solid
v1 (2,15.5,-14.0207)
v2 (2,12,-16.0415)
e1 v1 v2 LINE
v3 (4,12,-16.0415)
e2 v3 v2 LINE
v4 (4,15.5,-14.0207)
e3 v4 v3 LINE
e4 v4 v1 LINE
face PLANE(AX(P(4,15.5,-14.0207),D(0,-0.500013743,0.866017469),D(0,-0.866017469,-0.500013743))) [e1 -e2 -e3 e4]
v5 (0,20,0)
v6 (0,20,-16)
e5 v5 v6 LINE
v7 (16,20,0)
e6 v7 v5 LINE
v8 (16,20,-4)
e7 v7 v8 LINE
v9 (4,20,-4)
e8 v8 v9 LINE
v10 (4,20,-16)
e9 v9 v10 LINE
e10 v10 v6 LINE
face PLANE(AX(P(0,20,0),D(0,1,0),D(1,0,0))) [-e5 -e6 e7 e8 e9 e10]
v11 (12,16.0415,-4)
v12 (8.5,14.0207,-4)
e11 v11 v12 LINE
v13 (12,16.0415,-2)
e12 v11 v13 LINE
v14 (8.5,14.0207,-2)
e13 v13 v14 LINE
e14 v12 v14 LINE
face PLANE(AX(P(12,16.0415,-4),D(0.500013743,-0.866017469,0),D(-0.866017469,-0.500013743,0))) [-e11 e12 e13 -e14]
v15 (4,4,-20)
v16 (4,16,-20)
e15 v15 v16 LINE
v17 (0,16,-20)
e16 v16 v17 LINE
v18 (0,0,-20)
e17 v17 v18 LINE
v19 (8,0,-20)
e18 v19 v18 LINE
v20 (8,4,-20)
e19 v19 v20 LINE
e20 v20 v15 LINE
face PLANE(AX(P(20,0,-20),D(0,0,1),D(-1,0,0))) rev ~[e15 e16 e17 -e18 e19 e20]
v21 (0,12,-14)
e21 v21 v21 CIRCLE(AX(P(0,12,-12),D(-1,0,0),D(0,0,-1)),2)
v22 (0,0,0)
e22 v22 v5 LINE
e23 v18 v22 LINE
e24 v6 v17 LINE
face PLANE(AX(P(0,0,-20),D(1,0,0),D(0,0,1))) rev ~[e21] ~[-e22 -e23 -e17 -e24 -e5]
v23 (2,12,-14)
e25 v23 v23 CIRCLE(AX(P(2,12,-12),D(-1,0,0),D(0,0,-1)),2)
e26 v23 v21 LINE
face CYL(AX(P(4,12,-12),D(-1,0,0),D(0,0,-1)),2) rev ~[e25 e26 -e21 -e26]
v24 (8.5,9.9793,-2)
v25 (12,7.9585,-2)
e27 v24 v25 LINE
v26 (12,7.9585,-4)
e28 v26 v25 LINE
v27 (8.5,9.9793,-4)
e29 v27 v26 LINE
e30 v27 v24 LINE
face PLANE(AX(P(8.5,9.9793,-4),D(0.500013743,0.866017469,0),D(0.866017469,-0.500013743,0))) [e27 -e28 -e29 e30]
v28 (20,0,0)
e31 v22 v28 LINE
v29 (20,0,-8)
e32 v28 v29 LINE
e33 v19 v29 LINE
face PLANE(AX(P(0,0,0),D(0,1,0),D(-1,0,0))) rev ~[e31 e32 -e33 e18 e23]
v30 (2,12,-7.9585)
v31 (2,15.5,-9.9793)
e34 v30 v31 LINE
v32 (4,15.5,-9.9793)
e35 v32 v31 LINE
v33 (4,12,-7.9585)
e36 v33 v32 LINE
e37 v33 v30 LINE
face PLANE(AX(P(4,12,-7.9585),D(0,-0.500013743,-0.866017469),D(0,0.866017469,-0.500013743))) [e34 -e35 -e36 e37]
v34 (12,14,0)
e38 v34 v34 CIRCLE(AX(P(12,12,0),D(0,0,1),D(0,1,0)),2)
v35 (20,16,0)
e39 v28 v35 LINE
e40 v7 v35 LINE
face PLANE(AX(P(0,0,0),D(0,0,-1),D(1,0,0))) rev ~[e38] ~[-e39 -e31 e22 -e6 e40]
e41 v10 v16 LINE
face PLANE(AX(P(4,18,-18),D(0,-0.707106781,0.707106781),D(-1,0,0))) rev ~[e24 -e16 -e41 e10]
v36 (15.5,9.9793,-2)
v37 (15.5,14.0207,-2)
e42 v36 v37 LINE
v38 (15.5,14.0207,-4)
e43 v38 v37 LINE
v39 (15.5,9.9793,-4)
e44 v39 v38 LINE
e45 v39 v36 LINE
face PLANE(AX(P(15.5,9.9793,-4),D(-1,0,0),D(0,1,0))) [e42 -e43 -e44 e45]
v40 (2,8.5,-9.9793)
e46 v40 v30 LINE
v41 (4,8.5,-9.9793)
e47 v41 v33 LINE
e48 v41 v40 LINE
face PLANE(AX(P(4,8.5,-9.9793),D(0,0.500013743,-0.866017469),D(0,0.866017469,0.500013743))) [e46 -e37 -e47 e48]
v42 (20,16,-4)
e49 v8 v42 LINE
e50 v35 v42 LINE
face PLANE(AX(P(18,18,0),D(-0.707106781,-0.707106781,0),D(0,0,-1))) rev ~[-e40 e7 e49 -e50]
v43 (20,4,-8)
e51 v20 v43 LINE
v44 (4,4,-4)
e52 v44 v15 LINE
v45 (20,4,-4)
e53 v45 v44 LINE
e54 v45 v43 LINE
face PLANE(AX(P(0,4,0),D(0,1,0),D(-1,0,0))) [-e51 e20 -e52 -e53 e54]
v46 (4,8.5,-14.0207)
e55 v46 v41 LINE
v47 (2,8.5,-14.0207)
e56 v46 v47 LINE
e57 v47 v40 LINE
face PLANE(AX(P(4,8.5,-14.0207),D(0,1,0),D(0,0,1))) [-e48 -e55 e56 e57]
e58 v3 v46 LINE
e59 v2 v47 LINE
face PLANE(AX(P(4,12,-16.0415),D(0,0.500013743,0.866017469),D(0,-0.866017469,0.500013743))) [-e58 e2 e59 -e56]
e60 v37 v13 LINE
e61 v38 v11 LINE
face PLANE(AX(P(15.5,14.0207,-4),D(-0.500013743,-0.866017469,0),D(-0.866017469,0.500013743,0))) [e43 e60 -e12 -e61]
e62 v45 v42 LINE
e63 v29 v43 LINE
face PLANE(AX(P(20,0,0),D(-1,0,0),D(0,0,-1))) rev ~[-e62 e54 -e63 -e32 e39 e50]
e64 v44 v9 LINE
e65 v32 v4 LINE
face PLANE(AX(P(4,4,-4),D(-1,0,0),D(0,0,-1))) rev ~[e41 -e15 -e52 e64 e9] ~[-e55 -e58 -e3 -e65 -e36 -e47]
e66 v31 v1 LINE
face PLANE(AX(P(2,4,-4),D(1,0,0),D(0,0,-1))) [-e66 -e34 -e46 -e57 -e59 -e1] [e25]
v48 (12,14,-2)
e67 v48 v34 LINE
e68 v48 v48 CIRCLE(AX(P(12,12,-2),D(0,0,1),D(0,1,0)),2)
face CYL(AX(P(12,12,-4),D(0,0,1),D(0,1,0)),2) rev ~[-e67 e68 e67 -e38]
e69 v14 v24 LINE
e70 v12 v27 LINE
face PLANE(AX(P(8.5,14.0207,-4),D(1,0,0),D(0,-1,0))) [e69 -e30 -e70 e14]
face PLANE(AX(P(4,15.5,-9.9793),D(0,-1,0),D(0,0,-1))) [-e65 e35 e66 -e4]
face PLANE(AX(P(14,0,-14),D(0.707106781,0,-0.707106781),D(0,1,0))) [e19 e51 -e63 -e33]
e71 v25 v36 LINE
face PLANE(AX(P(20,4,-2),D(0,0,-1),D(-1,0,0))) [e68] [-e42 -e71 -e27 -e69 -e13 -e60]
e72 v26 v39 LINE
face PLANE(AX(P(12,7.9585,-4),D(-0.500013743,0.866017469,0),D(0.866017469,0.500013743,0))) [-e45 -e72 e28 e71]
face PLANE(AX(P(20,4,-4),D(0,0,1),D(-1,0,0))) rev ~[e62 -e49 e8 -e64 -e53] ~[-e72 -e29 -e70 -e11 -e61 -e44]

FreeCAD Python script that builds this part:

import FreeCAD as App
import Part
import Sketcher
from FreeCAD import Vector
Q = App.Units.Quantity


def edges_at(feature, points):
    """Names of the edges that pass closest to the given points."""
    edges = feature.Shape.Edges
    near = lambda p: min(range(len(edges)), key=lambda i: edges[i].distToShape(Part.Vertex(*p))[0])
    return sorted({f"Edge{near(p) + 1}" for p in points})


def add_polygon(sketch, points):
    """Adds a closed chain of lines whose ends are joined by coincident constraints."""
    first, n = sketch.GeometryCount, len(points)
    for a, b in zip(points, points[1:] + points[:1]):
        sketch.addGeometry(Part.LineSegment(App.Vector(*a, 0), App.Vector(*b, 0)), False)
    for i in range(n):
        sketch.addConstraint(Sketcher.Constraint("Coincident", first + i, 2, first + (i + 1) % n, 1))

doc = App.newDocument("Part")
params = doc.addObject("Spreadsheet::Sheet", "Params")
for row, (alias, value) in enumerate([
    ("sketch1_width", "20 mm"),
    ("pad1_length", "4 mm"),
    ("sketch2_width", "20 mm"),
    ("sketch2_width2", "16 mm"),
    ("pad2_length", "16 mm"),
    ("sketch3_diameter", "4 mm"),
    ("hole_diameter", "4 mm"),
    ("sketch4_diameter", "4 mm"),
    ("hole2_diameter", "4 mm"),
    ("chamfer_size", "12 mm"),
    ("chamfer2_size", "4 mm"),
    ("chamfer3_size", "4 mm"),
    ("pocket1_length", "2 mm"),
    ("pocket2_length", "2 mm"),
], start=1):
    params.set(f"A{row}", alias)
    params.set(f"B{row}", "=" + value)
    params.setAlias(f"B{row}", alias)

body = doc.addObject("PartDesign::Body", "Body")

sketch1 = body.newObject("Sketcher::SketchObject", "Sketch")
sketch1.AttachmentSupport = (doc.getObject("XZ_Plane"), [""])
sketch1.MapMode = "FlatFace"
add_polygon(sketch1, [(0, -20), (0, 0), (20, 0), (20, -20)])
sketch1.addConstraint([
    Sketcher.Constraint("Vertical", 0),
    Sketcher.Constraint("Horizontal", 1),
    Sketcher.Constraint("Vertical", 2),
    Sketcher.Constraint("Horizontal", 3),
    Sketcher.Constraint("Coincident", 0, 2, -1, 1),
    Sketcher.Constraint("Equal", 3, 0),
    Sketcher.Constraint("DistanceX", 1, 1, 1, 2, 20.0),
])
sketch1.setExpression("Constraints[10]", "Params.sketch1_width")
pad1 = body.newObject("PartDesign::Pad", "Pad")
pad1.Profile = sketch1
pad1.setExpression("Length", "Params.pad1_length")
pad1.Reversed = True

sketch2 = body.newObject("Sketcher::SketchObject", "Sketch001")
sketch2.AttachmentSupport = (doc.getObject("XZ_Plane"), [""])
sketch2.MapMode = "FlatFace"
sketch2.AttachmentOffset = App.Placement(Vector(0, 0, -4), App.Rotation())
add_polygon(sketch2, [(0, -20), (0, 0), (20, 0), (20, -4), (4, -4), (4, -20)])
sketch2.addConstraint([
    Sketcher.Constraint("Vertical", 0),
    Sketcher.Constraint("Horizontal", 1),
    Sketcher.Constraint("Vertical", 2),
    Sketcher.Constraint("Horizontal", 3),
    Sketcher.Constraint("Vertical", 4),
    Sketcher.Constraint("Horizontal", 5),
    Sketcher.Constraint("Coincident", 0, 2, -1, 1),
    Sketcher.Constraint("Equal", 1, 0),
    Sketcher.Constraint("Equal", 5, 2),
    Sketcher.Constraint("DistanceX", 1, 1, 1, 2, 20.0),
    Sketcher.Constraint("DistanceX", 3, 2, 3, 1, 16.0),
])
sketch2.setExpression("Constraints[15]", "Params.sketch2_width")
sketch2.setExpression("Constraints[16]", "Params.sketch2_width2")
pad2 = body.newObject("PartDesign::Pad", "Pad001")
pad2.Profile = sketch2
pad2.setExpression("Length", "Params.pad2_length")
pad2.Reversed = True

sketch3 = body.newObject("Sketcher::SketchObject", "Sketch002")
sketch3.AttachmentSupport = (doc.getObject("XY_Plane"), [""])
sketch3.MapMode = "FlatFace"
sketch3.AttachmentOffset = App.Placement(Vector(0, 0, -4), App.Rotation())
sketch3.addGeometry(Part.Circle(Vector(12, 12, 0), Vector(0, 0, 1), 2), False)
sketch3.addConstraint([
    Sketcher.Constraint("Diameter", 0, 4.0),
    Sketcher.Constraint("DistanceX", -1, 1, 0, 3, 12.0),
    Sketcher.Constraint("DistanceY", -1, 1, 0, 3, 12.0),
])
sketch3.setExpression("Constraints[0]", "Params.sketch3_diameter")
doc.recompute()
hole = body.newObject("PartDesign::Hole", "Hole")
hole.Profile = sketch3
hole.ThreadType = "None"
hole.setExpression("Diameter", "Params.hole_diameter")
hole.DepthType = "ThroughAll"
hole.Reversed = True

sketch4 = body.newObject("Sketcher::SketchObject", "Sketch003")
sketch4.AttachmentSupport = (doc.getObject("YZ_Plane"), [""])
sketch4.MapMode = "FlatFace"
sketch4.AttachmentOffset = App.Placement(Vector(0, 0, 4), App.Rotation())
sketch4.addGeometry(Part.Circle(Vector(12, -12, 0), Vector(0, 0, 1), 2), False)
sketch4.addConstraint([
    Sketcher.Constraint("Diameter", 0, 4.0),
    Sketcher.Constraint("DistanceX", -1, 1, 0, 3, 12.0),
    Sketcher.Constraint("DistanceY", 0, 3, -1, 1, 12.0),
])
sketch4.setExpression("Constraints[0]", "Params.sketch4_diameter")
doc.recompute()
hole2 = body.newObject("PartDesign::Hole", "Hole001")
hole2.Profile = sketch4
hole2.ThreadType = "None"
hole2.setExpression("Diameter", "Params.hole2_diameter")
hole2.DepthType = "ThroughAll"
doc.recompute()

chamfer = body.newObject("PartDesign::Chamfer", "Chamfer")
chamfer.Base = (hole2, edges_at(hole2, [(20, 2, -20)]))
chamfer.setExpression("Size", "Params.chamfer_size")
doc.recompute()

chamfer2 = body.newObject("PartDesign::Chamfer", "Chamfer001")
chamfer2.Base = (chamfer, edges_at(chamfer, [(20, 20, -2)]))
chamfer2.setExpression("Size", "Params.chamfer2_size")
doc.recompute()

chamfer3 = body.newObject("PartDesign::Chamfer", "Chamfer002")
chamfer3.Base = (chamfer2, edges_at(chamfer2, [(2, 20, -20)]))
chamfer3.setExpression("Size", "Params.chamfer3_size")

sketch5 = body.newObject("Sketcher::SketchObject", "Sketch004")
sketch5.AttachmentSupport = (doc.getObject("XY_Plane"), [""])
sketch5.MapMode = "FlatFace"
sketch5.AttachmentOffset = App.Placement(Vector(0, 0, -4), App.Rotation())
add_polygon(sketch5, [(8.5, 14.0207), (12, 16.0415), (15.5, 14.0207), (15.5, 9.9793), (12, 7.9585), (8.5, 9.9793)])
sketch5.addConstraint([
    Sketcher.Constraint("Vertical", 2),
    Sketcher.Constraint("Vertical", 5),
    Sketcher.Constraint("Parallel", 0, 3),
    Sketcher.Constraint("Parallel", 1, 4),
    Sketcher.Constraint("Horizontal", 2, 2, 4, 2),
    Sketcher.Constraint("Horizontal", 1, 2, 5, 2),
    Sketcher.Constraint("Vertical", 0, 2, 3, 2),
    Sketcher.Constraint("DistanceX", 4, 2, 2, 2, 7.0),
    Sketcher.Constraint("Angle", 0, Q("30.001 deg")),
    Sketcher.Constraint("DistanceX", -1, 1, 0, 2, 12.0),
    Sketcher.Constraint("DistanceY", 2, 2, 2, 1, 4.0414),
    Sketcher.Constraint("DistanceY", -1, 1, 0, 2, 16.0415),
])
pocket1 = body.newObject("PartDesign::Pocket", "Pocket")
pocket1.Profile = sketch5
pocket1.setExpression("Length", "Params.pocket1_length")
pocket1.Reversed = True

sketch6 = body.newObject("Sketcher::SketchObject", "Sketch005")
sketch6.AttachmentSupport = (doc.getObject("YZ_Plane"), [""])
sketch6.MapMode = "FlatFace"
sketch6.AttachmentOffset = App.Placement(Vector(0, 0, 4), App.Rotation())
add_polygon(sketch6, [(15.5, -9.9793), (12, -7.9585), (8.5, -9.9793), (8.5, -14.0207), (12, -16.0415), (15.5, -14.0207)])
sketch6.addConstraint([
    Sketcher.Constraint("Vertical", 2),
    Sketcher.Constraint("Vertical", 5),
    Sketcher.Constraint("Parallel", 0, 3),
    Sketcher.Constraint("Parallel", 1, 4),
    Sketcher.Constraint("Horizontal", 2, 2, 4, 2),
    Sketcher.Constraint("Horizontal", 1, 2, 5, 2),
    Sketcher.Constraint("Vertical", 0, 2, 3, 2),
    Sketcher.Constraint("DistanceX", 2, 2, 4, 2, 7.0),
    Sketcher.Constraint("Angle", 0, Q("149.999 deg")),
    Sketcher.Constraint("DistanceX", -1, 1, 0, 2, 12.0),
    Sketcher.Constraint("DistanceY", 2, 2, 2, 1, 4.0414),
    Sketcher.Constraint("DistanceY", 0, 2, -1, 1, 7.9585),
])
pocket2 = body.newObject("PartDesign::Pocket", "Pocket001")
pocket2.Profile = sketch6
pocket2.setExpression("Length", "Params.pocket2_length")

doc.recompute()
